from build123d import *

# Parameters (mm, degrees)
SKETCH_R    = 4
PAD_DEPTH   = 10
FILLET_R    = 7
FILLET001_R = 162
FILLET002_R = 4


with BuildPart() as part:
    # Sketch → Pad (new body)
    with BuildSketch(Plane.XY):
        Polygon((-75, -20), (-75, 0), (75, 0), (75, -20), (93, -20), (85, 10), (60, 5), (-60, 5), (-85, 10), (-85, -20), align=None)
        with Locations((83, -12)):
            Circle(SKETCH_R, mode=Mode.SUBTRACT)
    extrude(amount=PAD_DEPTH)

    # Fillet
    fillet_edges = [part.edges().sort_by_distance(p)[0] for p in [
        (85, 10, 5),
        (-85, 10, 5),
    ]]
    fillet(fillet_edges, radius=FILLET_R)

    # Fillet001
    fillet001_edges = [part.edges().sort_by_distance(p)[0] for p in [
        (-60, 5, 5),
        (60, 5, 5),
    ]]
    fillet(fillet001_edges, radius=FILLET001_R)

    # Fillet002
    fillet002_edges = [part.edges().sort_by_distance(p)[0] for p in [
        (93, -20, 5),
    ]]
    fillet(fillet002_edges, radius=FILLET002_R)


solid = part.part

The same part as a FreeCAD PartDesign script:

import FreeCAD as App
import Part
import Sketcher

V = App.Vector


def edges_at(feature, points):
    """Names of the edges that pass closest to the given points."""
    edges = feature.Shape.Edges
    near = lambda p: min(range(len(edges)), key=lambda i: edges[i].distToShape(Part.Vertex(*p))[0])
    return sorted({f"Edge{near(p) + 1}" for p in points})


def add_polygon(sketch, points):
    """Adds a closed chain of lines whose ends are joined by coincident constraints."""
    first, n = sketch.GeometryCount, len(points)
    for a, b in zip(points, points[1:] + points[:1]):
        sketch.addGeometry(Part.LineSegment(App.Vector(*a, 0), App.Vector(*b, 0)), False)
    for i in range(n):
        sketch.addConstraint(Sketcher.Constraint("Coincident", first + i, 2, first + (i + 1) % n, 1))

doc = App.newDocument("Part")
body = doc.addObject("PartDesign::Body", "Body")

# Sketch on XY plane
sketch1 = body.newObject("Sketcher::SketchObject", "Sketch")
sketch1.AttachmentSupport = (doc.getObject("XY_Plane"), [""])
sketch1.MapMode = "FlatFace"
add_polygon(sketch1, [(-75, -20), (-75, 0), (75, 0), (75, -20), (93, -20), (85, 10), (60, 5), (-60, 5), (-85, 10), (-85, -20)])  # lines 0-9
sketch1.addGeometry(Part.Circle(V(83, -12, 0), V(0, 0, 1), 4), False)  # 10
sketch1.addConstraint(Sketcher.Constraint("Vertical", 0))
sketch1.addConstraint(Sketcher.Constraint("Horizontal", 1))
sketch1.addConstraint(Sketcher.Constraint("Vertical", 2))
sketch1.addConstraint(Sketcher.Constraint("Horizontal", 3))
sketch1.addConstraint(Sketcher.Constraint("Horizontal", 6))
sketch1.addConstraint(Sketcher.Constraint("Vertical", 8))
sketch1.addConstraint(Sketcher.Constraint("Horizontal", 9))
sketch1.addConstraint(Sketcher.Constraint("Symmetric", 0, 2, 1, 2, -1, 1))
sketch1.addConstraint(Sketcher.Constraint("Symmetric", 4, 2, 7, 2, -2))
sketch1.addConstraint(Sketcher.Constraint("Horizontal", 3, 2, 8, 2))
sketch1.addConstraint(Sketcher.Constraint("Equal", 5, 7))
sketch1.addConstraint(Sketcher.Constraint("Diameter", 10, 8.0))
sketch1.addConstraint(Sketcher.Constraint("DistanceX", 1, 1, 1, 2, 150.0))
sketch1.addConstraint(Sketcher.Constraint("DistanceX", 3, 1, 3, 2, 18.0))
sketch1.addConstraint(Sketcher.Constraint("DistanceX", 6, 2, 6, 1, 120.0))
sketch1.addConstraint(Sketcher.Constraint("DistanceX", 9, 1, 9, 2, 10.0))
sketch1.addConstraint(Sketcher.Constraint("DistanceY", 0, 1, 0, 2, 20.0))
sketch1.addConstraint(Sketcher.Constraint("DistanceY", 8, 2, 8, 1, 30.0))
sketch1.addConstraint(Sketcher.Constraint("DistanceX", -1, 1, 10, 3, 83.0))
sketch1.addConstraint(Sketcher.Constraint("DistanceY", 10, 3, -1, 1, 12.0))
sketch1.addConstraint(Sketcher.Constraint("DistanceY", -1, 1, 5, 2, 5.0))
pad1 = body.newObject("PartDesign::Pad", "Pad")
pad1.Profile = sketch1
pad1.Length = 10
doc.recompute()

fillet = body.newObject("PartDesign::Fillet", "Fillet")
fillet.Base = (pad1, edges_at(pad1, [(85, 10, 5), (-85, 10, 5)]))
fillet.Radius = 7
doc.recompute()

fillet2 = body.newObject("PartDesign::Fillet", "Fillet001")
fillet2.Base = (fillet, edges_at(fillet, [(-60, 5, 5), (60, 5, 5)]))
fillet2.Radius = 162
doc.recompute()

fillet3 = body.newObject("PartDesign::Fillet", "Fillet002")
fillet3.Base = (fillet2, edges_at(fillet2, [(93, -20, 5)]))
fillet3.Radius = 4

doc.recompute()
